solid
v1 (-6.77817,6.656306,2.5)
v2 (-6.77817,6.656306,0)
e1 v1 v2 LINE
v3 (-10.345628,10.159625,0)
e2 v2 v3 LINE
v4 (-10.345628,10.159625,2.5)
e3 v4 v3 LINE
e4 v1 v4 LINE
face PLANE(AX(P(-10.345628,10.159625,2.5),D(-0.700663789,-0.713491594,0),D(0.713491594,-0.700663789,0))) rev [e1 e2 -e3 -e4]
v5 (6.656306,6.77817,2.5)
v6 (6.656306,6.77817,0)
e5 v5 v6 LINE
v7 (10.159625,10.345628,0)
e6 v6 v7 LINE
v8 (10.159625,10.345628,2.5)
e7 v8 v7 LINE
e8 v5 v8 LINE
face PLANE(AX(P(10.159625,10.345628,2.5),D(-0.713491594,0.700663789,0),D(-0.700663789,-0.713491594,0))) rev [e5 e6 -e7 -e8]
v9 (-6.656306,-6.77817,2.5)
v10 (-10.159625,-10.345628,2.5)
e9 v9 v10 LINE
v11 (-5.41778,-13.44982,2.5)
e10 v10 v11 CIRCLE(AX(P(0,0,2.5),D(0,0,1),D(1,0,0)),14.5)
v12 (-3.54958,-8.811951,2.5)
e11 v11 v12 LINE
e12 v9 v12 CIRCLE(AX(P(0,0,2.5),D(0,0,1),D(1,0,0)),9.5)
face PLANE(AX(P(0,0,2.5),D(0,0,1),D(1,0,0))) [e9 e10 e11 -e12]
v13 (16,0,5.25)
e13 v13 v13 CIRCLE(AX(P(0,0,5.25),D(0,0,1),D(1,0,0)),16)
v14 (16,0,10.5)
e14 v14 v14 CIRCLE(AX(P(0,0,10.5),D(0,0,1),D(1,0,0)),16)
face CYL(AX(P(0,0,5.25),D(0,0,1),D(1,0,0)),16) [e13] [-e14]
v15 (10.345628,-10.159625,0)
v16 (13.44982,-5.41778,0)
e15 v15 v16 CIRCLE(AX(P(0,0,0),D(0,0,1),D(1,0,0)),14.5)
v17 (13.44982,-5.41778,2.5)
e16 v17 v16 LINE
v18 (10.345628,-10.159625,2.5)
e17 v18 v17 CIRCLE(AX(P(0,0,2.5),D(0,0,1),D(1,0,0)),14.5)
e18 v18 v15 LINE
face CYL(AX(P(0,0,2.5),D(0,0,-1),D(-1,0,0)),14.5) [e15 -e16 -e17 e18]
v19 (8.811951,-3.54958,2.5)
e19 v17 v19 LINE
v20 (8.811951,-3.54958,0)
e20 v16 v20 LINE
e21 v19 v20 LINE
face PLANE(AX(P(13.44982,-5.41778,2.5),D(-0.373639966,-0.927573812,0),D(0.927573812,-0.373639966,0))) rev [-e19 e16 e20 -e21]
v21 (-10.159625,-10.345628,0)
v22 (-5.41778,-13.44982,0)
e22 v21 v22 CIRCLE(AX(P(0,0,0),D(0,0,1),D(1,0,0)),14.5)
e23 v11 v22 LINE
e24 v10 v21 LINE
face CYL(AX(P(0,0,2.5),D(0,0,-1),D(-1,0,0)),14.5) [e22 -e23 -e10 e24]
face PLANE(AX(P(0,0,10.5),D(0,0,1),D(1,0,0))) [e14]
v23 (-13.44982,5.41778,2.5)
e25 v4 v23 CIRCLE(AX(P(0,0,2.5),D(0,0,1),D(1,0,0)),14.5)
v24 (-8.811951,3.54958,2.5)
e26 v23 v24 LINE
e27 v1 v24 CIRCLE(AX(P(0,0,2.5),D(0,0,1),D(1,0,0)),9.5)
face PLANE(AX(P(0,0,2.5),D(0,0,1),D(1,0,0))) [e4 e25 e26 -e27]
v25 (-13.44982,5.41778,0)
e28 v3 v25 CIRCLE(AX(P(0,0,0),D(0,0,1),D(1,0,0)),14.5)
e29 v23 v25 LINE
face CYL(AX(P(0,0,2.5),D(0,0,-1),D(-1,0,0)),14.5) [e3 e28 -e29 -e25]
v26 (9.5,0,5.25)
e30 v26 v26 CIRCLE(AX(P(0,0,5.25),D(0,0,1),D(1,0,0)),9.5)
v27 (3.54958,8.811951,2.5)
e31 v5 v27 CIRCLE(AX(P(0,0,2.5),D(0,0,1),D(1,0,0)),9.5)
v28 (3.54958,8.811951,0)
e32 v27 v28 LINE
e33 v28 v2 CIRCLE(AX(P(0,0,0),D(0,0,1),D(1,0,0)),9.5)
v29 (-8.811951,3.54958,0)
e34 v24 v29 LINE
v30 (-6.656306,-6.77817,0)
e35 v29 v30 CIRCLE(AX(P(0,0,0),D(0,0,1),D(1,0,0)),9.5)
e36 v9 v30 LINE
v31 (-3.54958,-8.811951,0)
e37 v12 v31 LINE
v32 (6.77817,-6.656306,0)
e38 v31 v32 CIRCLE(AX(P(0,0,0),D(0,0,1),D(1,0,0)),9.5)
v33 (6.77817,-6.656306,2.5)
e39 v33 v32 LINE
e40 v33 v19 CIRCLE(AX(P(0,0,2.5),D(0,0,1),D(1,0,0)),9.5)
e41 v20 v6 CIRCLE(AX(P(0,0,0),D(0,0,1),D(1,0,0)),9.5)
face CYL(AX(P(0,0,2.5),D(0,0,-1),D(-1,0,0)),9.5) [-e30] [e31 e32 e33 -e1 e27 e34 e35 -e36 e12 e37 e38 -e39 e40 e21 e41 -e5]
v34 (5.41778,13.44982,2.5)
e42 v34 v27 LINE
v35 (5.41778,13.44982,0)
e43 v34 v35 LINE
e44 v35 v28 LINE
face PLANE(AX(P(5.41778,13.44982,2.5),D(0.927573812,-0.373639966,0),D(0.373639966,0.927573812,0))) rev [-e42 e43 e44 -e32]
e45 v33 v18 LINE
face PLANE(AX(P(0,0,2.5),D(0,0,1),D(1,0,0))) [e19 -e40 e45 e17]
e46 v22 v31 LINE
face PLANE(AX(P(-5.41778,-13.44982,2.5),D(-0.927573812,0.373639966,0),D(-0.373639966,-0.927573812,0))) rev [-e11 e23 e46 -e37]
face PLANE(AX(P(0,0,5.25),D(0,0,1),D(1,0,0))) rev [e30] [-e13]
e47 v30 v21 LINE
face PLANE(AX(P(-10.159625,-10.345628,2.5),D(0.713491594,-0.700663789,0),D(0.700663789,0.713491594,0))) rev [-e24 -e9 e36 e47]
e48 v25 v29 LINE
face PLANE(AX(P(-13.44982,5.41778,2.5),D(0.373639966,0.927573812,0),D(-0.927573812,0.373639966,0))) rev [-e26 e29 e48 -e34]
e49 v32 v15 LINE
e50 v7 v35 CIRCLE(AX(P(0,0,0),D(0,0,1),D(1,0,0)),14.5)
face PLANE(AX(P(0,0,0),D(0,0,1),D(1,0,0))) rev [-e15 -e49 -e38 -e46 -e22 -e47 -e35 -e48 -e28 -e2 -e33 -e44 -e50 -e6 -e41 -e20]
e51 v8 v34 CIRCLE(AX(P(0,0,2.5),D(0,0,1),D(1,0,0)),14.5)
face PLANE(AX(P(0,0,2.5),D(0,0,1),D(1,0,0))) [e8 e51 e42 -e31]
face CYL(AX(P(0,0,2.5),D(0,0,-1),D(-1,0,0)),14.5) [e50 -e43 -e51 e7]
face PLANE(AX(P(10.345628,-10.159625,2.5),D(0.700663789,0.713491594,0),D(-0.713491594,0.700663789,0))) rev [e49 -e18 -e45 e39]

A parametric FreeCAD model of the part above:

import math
import FreeCAD as App
import Part
import Sketcher
from FreeCAD import Vector

doc = App.newDocument("Part")
body = doc.addObject("PartDesign::Body", "Body")

sketch1 = doc.addObject("Sketcher::SketchObject", "Sketch")
body.addObject(sketch1)
sketch1.AttachmentSupport = (doc.XY_Plane, [""])
sketch1.MapMode = "FlatFace"
sketch1.addGeometry([
    Part.LineSegment(Vector(5.4, 13.4, 0), Vector(3.5, 8.8, 0)),
    Part.ArcOfCircle(Part.Circle(Vector(0, 0, 0), Vector(0, 0, 1), 9.5), math.radians(68), math.radians(136)),
    Part.LineSegment(Vector(-6.8, 6.7, 0), Vector(-10.3, 10.2, 0)),
    Part.ArcOfCircle(Part.Circle(Vector(0, 0, 0), Vector(0, 0, 1), 14.5), math.radians(136), math.radians(158)),
    Part.LineSegment(Vector(-13.4, 5.4, 0), Vector(-8.8, 3.5, 0)),
    Part.ArcOfCircle(Part.Circle(Vector(0, 0, 0), Vector(0, 0, 1), 9.5), math.radians(158), math.radians(226)),
    Part.LineSegment(Vector(-6.7, -6.8, 0), Vector(-10.2, -10.3, 0)),
    Part.ArcOfCircle(Part.Circle(Vector(0, 0, 0), Vector(0, 0, 1), 14.5), math.radians(-134), math.radians(-112)),
    Part.LineSegment(Vector(-5.4, -13.4, 0), Vector(-3.5, -8.8, 0)),
    Part.ArcOfCircle(Part.Circle(Vector(0, 0, 0), Vector(0, 0, 1), 9.5), math.radians(-112), math.radians(-44)),
    Part.LineSegment(Vector(6.8, -6.7, 0), Vector(10.3, -10.2, 0)),
    Part.ArcOfCircle(Part.Circle(Vector(0, 0, 0), Vector(0, 0, 1), 14.5), math.radians(-44), math.radians(-22)),
    Part.LineSegment(Vector(13.4, -5.4, 0), Vector(8.8, -3.5, 0)),
    Part.ArcOfCircle(Part.Circle(Vector(0, 0, 0), Vector(0, 0, 1), 9.5), math.radians(-22), math.radians(46)),
    Part.LineSegment(Vector(6.7, 6.8, 0), Vector(10.2, 10.3, 0)),
    Part.ArcOfCircle(Part.Circle(Vector(0, 0, 0), Vector(0, 0, 1), 14.5), math.radians(46), math.radians(68)),
], False)
sketch1.addConstraint([
    Sketcher.Constraint("Coincident", 0, 2, 1, 1),
    Sketcher.Constraint("Coincident", 1, 2, 2, 1),
    Sketcher.Constraint("Coincident", 2, 2, 3, 1),
    Sketcher.Constraint("Coincident", 3, 2, 4, 1),
    Sketcher.Constraint("Coincident", 4, 2, 5, 1),
    Sketcher.Constraint("Coincident", 5, 2, 6, 1),
    Sketcher.Constraint("Coincident", 6, 2, 7, 1),
    Sketcher.Constraint("Coincident", 7, 2, 8, 1),
    Sketcher.Constraint("Coincident", 8, 2, 9, 1),
    Sketcher.Constraint("Coincident", 9, 2, 10, 1),
    Sketcher.Constraint("Coincident", 10, 2, 11, 1),
    Sketcher.Constraint("Coincident", 11, 2, 12, 1),
    Sketcher.Constraint("Coincident", 12, 2, 13, 1),
    Sketcher.Constraint("Coincident", 13, 2, 14, 1),
    Sketcher.Constraint("Coincident", 14, 2, 15, 1),
    Sketcher.Constraint("Coincident", 15, 2, 0, 1),
    Sketcher.Constraint("Coincident", 1, 3, -1, 1),
    Sketcher.Constraint("Coincident", 3, 3, -1, 1),
    Sketcher.Constraint("Coincident", 5, 3, -1, 1),
    Sketcher.Constraint("Coincident", 7, 3, -1, 1),
    Sketcher.Constraint("Coincident", 9, 3, -1, 1),
    Sketcher.Constraint("Coincident", 11, 3, -1, 1),
    Sketcher.Constraint("Coincident", 13, 3, -1, 1),
    Sketcher.Constraint("Coincident", 15, 3, -1, 1),
    Sketcher.Constraint("Equal", 1, 5),
    Sketcher.Constraint("Equal", 3, 7),
    Sketcher.Constraint("Equal", 5, 9),
    Sketcher.Constraint("Equal", 7, 11),
    Sketcher.Constraint("Equal", 9, 13),
    Sketcher.Constraint("Equal", 11, 15),
    Sketcher.Constraint("Perpendicular", 0, 4),
    Sketcher.Constraint("Perpendicular", 2, 6),
    Sketcher.Constraint("Perpendicular", 4, 8),
    Sketcher.Constraint("Perpendicular", 6, 10),
    Sketcher.Constraint("Perpendicular", 8, 12),
    Sketcher.Constraint("Perpendicular", 10, 14),
    Sketcher.Constraint("Radius", 1, 9.5),
    Sketcher.Constraint("Radius", 3, 14.5),
    Sketcher.Constraint("DistanceY", 4, 2, 3, 2, 1.8682),
    Sketcher.Constraint("DistanceX", -1, 1, 0, 2, 3.54958),
    Sketcher.Constraint("DistanceX", 1, 2, -1, 1, 6.77817),
    Sketcher.Constraint("DistanceX", 2, 2, -1, 1, 10.345628),
    Sketcher.Constraint("DistanceX", 3, 2, -1, 1, 13.44982),
    Sketcher.Constraint("DistanceY", 5, 2, -1, 1, 6.77817),
    Sketcher.Constraint("DistanceX", 7, 2, -1, 1, 5.41778),
    Sketcher.Constraint("DistanceX", -1, 1, 9, 2, 6.77817),
    Sketcher.Constraint("DistanceX", -1, 1, 11, 2, 13.44982),
    Sketcher.Constraint("DistanceY", -1, 1, 13, 2, 6.77817),
])
pad1 = doc.addObject("PartDesign::Pad", "Pad")
body.addObject(pad1)
pad1.Profile = sketch1
pad1.Length = 2.5

sketch2 = doc.addObject("Sketcher::SketchObject", "Sketch001")
body.addObject(sketch2)
sketch2.AttachmentSupport = (doc.XY_Plane, [""])
sketch2.MapMode = "FlatFace"
sketch2.AttachmentOffset = App.Placement(Vector(0, 0, 2.5), App.Rotation())
sketch2.addGeometry(Part.Circle(Vector(0, 0, 0), Vector(0, 0, 1), 10), False)
sketch2.addConstraint([
    Sketcher.Constraint("Coincident", 0, 3, -1, 1),
    Sketcher.Constraint("Diameter", 0, 19.0),
])
pad2 = doc.addObject("PartDesign::Pad", "Pad001")
body.addObject(pad2)
pad2.Profile = sketch2
pad2.Length = 3

sketch3 = doc.addObject("Sketcher::SketchObject", "Sketch002")
body.addObject(sketch3)
sketch3.AttachmentSupport = (doc.XY_Plane, [""])
sketch3.MapMode = "FlatFace"
sketch3.AttachmentOffset = App.Placement(Vector(0, 0, 5.5), App.Rotation())
sketch3.addGeometry(Part.Circle(Vector(0, 0, 0), Vector(0, 0, 1), 16), False)
sketch3.addConstraint([
    Sketcher.Constraint("Coincident", 0, 3, -1, 1),
    Sketcher.Constraint("Diameter", 0, 32.0),
])
pad3 = doc.addObject("PartDesign::Pad", "Pad002")
body.addObject(pad3)
pad3.Profile = sketch3
pad3.Type = "TwoLengths"
pad3.Length = 5
pad3.Length2 = 0.25

doc.recompute()
